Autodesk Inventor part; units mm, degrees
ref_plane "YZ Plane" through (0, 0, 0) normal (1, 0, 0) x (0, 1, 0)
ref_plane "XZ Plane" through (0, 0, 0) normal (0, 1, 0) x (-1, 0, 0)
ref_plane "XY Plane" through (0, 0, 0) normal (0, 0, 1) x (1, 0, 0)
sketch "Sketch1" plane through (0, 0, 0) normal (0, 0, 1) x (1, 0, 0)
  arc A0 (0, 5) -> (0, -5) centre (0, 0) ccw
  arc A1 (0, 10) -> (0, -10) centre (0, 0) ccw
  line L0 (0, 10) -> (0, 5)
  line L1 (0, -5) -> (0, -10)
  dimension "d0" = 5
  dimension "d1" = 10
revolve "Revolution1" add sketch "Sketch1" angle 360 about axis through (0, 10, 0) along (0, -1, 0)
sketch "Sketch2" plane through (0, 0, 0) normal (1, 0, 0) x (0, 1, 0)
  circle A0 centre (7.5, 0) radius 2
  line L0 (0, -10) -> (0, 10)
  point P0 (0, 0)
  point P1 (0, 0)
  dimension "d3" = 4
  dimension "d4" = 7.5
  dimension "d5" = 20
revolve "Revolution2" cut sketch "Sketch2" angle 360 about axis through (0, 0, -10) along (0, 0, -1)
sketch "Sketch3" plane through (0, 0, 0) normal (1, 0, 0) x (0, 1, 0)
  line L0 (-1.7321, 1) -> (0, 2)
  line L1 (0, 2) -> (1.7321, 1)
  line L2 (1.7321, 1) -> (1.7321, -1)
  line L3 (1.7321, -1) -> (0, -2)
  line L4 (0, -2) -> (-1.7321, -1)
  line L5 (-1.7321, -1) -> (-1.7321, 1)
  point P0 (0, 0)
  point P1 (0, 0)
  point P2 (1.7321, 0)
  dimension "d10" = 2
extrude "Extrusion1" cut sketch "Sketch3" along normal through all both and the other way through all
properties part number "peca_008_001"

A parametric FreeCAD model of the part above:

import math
import FreeCAD as App
import Part
import Sketcher

V = App.Vector

doc = App.newDocument("Part")
body = doc.addObject("PartDesign::Body", "Body")

# Sketch on XY plane
sketch1 = body.newObject("Sketcher::SketchObject", "Sketch")
sketch1.AttachmentSupport = (doc.getObject("XY_Plane"), [""])
sketch1.MapMode = "FlatFace"
sketch1.addGeometry([
    Part.ArcOfCircle(Part.Circle(V(0, 0, 0), V(0, 0, 1), 5), math.radians(90), math.radians(270)),
    Part.LineSegment(V(0, 5, 0), V(0, 10, 0)),
    Part.ArcOfCircle(Part.Circle(V(0, 0, 0), V(0, 0, 1), 10), math.radians(90), math.radians(270)),
    Part.LineSegment(V(0, -10, 0), V(0, -5, 0)),
], False)
sketch1.addConstraint([
    Sketcher.Constraint("Coincident", 0, 1, 1, 1),
    Sketcher.Constraint("Coincident", 1, 2, 2, 1),
    Sketcher.Constraint("Coincident", 2, 2, 3, 1),
    Sketcher.Constraint("Coincident", 3, 2, 0, 2),
    Sketcher.Constraint("Vertical", 1),
    Sketcher.Constraint("Vertical", 3),
    Sketcher.Constraint("Coincident", 0, 3, -1, 1),
    Sketcher.Constraint("Coincident", 2, 3, -1, 1),
    Sketcher.Constraint("PointOnObject", 0, 1, -2),
    Sketcher.Constraint("PointOnObject", 2, 2, -2),
    Sketcher.Constraint("Radius", 0, 5.0),
    Sketcher.Constraint("Radius", 2, 10.0),
])
revolution = body.newObject("PartDesign::Revolution", "Revolution")
revolution.Profile = sketch1
revolution.ReferenceAxis = (sketch1, ["V_Axis"])
revolution.Angle = 360

# Sketch on YZ plane
sketch2 = body.newObject("Sketcher::SketchObject", "Sketch001")
sketch2.AttachmentSupport = (doc.getObject("YZ_Plane"), [""])
sketch2.MapMode = "FlatFace"
sketch2.addGeometry(Part.Circle(V(7.5, 0, 0), V(0, 0, 1), 2), False)
sketch2.addConstraint([
    Sketcher.Constraint("PointOnObject", 0, 3, -1),
    Sketcher.Constraint("Diameter", 0, 4.0),
    Sketcher.Constraint("DistanceX", -1, 1, 0, 3, 7.5),
])
groove = body.newObject("PartDesign::Groove", "Groove")
groove.Profile = sketch2
groove.ReferenceAxis = (sketch2, ["V_Axis"])
groove.Angle = 360

# Sketch on YZ plane
sketch3 = body.newObject("Sketcher::SketchObject", "Sketch002")
sketch3.AttachmentSupport = (doc.getObject("YZ_Plane"), [""])
sketch3.MapMode = "FlatFace"
sketch3.addGeometry([
    Part.LineSegment(V(0, 2, 0), V(-1.7, 1, 0)),  # 0
    Part.LineSegment(V(-1.7, 1, 0), V(-1.7, -1, 0)),  # 1
    Part.LineSegment(V(-1.7, -1, 0), V(0, -2, 0)),  # 2
    Part.LineSegment(V(0, -2, 0), V(1.7, -1, 0)),  # 3
    Part.LineSegment(V(1.7, -1, 0), V(1.7, 1, 0)),  # 4
    Part.LineSegment(V(1.7, 1, 0), V(0, 2, 0)),  # 5
], False)
sketch3.addConstraint([
    Sketcher.Constraint("Coincident", 0, 2, 1, 1),
    Sketcher.Constraint("Coincident", 1, 2, 2, 1),
    Sketcher.Constraint("Coincident", 2, 2, 3, 1),
    Sketcher.Constraint("Coincident", 3, 2, 4, 1),
    Sketcher.Constraint("Coincident", 4, 2, 5, 1),
    Sketcher.Constraint("Coincident", 5, 2, 0, 1),
    Sketcher.Constraint("Vertical", 1),
    Sketcher.Constraint("Vertical", 4),
    Sketcher.Constraint("Symmetric", 0, 2, 3, 2, -1, 1),
    Sketcher.Constraint("Symmetric", 2, 2, 5, 2, -1, 1),
    Sketcher.Constraint("PointOnObject", 2, 2, -2),
    Sketcher.Constraint("Parallel", 2, 5),
    Sketcher.Constraint("Horizontal", 1, 2, 3, 2),
    Sketcher.Constraint("DistanceY", 1, 2, 1, 1, 2.0),
    Sketcher.Constraint("Distance", 0, 2.0),
    Sketcher.Constraint("DistanceY", 2, 2, -1, 1, 2.0),
])
pocket1 = body.newObject("PartDesign::Pocket", "Pocket")
pocket1.Profile = sketch3
pocket1.Type = "ThroughAll"
pocket1.Midplane = True

doc.recompute()
